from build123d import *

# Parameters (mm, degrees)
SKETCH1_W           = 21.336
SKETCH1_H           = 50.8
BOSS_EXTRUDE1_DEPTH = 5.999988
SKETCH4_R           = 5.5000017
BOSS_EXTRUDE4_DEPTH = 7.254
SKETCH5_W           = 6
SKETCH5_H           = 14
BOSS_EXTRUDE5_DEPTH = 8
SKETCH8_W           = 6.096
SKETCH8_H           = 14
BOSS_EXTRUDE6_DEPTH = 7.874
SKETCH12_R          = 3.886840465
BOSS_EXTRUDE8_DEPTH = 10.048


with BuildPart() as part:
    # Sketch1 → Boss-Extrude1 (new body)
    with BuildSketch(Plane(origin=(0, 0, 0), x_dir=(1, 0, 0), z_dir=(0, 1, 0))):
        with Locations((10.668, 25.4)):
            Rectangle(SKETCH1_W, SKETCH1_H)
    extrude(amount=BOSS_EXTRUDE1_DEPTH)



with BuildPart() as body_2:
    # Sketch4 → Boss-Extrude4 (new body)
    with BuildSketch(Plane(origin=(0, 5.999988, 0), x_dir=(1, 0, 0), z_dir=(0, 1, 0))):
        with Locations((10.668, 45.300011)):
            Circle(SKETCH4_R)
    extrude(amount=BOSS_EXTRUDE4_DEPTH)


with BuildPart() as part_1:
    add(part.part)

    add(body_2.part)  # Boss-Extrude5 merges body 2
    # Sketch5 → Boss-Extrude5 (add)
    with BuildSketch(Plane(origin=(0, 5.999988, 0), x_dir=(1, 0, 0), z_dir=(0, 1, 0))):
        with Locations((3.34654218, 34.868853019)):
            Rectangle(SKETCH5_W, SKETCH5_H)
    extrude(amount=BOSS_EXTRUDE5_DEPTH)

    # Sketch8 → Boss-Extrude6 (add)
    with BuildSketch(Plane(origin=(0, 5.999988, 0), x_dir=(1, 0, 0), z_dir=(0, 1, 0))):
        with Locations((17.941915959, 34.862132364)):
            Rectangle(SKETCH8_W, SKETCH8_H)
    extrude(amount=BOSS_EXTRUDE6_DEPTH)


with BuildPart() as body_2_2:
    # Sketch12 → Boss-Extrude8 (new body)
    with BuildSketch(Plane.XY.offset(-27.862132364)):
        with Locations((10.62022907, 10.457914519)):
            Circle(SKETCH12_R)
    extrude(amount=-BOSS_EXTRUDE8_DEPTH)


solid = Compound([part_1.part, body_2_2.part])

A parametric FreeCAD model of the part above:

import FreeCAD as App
import Part
import Sketcher
from FreeCAD import Vector
Q = App.Units.Quantity

doc = App.newDocument("Part")
params = doc.addObject("Spreadsheet::Sheet", "Params")
for row, (alias, value) in enumerate([
    ("sketch1_height", "2 in"),
    ("sketch1_width", "0.84 in"),
    ("pad1_length", "5.999988 mm"),
    ("pad2_length", "7.254 mm"),
    ("pad3_length", "8 mm"),
    ("sketch4_width", "0.24 in"),
    ("pad4_length", "0.31 in"),
    ("pad5_length", "10.048 mm"),
], start=1):
    params.set(f"A{row}", alias)
    params.set(f"B{row}", "=" + value)
    params.setAlias(f"B{row}", alias)

body = doc.addObject("PartDesign::Body", "Body")

# Sketch on XZ plane
sketch1 = doc.addObject("Sketcher::SketchObject", "Sketch")
body.addObject(sketch1)
sketch1.AttachmentSupport = (doc.XZ_Plane, [""])
sketch1.MapMode = "FlatFace"
sketch1.addGeometry([
    Part.LineSegment(Vector(0, -51, 0), Vector(0, 0, 0)),
    Part.LineSegment(Vector(0, 0, 0), Vector(21, 0, 0)),
    Part.LineSegment(Vector(21, 0, 0), Vector(21, -51, 0)),
    Part.LineSegment(Vector(21, -51, 0), Vector(0, -51, 0)),
], False)
sketch1.addConstraint([
    Sketcher.Constraint("Coincident", 0, 2, 1, 1),
    Sketcher.Constraint("Coincident", 1, 2, 2, 1),
    Sketcher.Constraint("Coincident", 2, 2, 3, 1),
    Sketcher.Constraint("Coincident", 3, 2, 0, 1),
    Sketcher.Constraint("Vertical", 0),
    Sketcher.Constraint("Horizontal", 1),
    Sketcher.Constraint("Vertical", 2),
    Sketcher.Constraint("Horizontal", 3),
    Sketcher.Constraint("Coincident", 0, 2, -1, 1),
    Sketcher.Constraint("DistanceY", 0, 1, 0, 2, Q("2 in")),
    Sketcher.Constraint("DistanceX", 1, 1, 1, 2, Q("0.84 in")),
])
sketch1.setExpression("Constraints[9]", "Params.sketch1_height")
sketch1.setExpression("Constraints[10]", "Params.sketch1_width")
pad1 = doc.addObject("PartDesign::Pad", "Pad")
body.addObject(pad1)
pad1.Profile = sketch1
pad1.setExpression("Length", "Params.pad1_length")
pad1.Reversed = True
body2 = doc.addObject("PartDesign::Body", "Body001")

# Sketch on XZ plane
sketch2 = doc.addObject("Sketcher::SketchObject", "Sketch001")
body2.addObject(sketch2)
sketch2.AttachmentSupport = (doc.getObject("XZ_Plane001"), [""])
sketch2.MapMode = "FlatFace"
sketch2.AttachmentOffset = App.Placement(Vector(0, 0, -5.999988), App.Rotation())
sketch2.addGeometry(Part.Circle(Vector(11, -45, 0), Vector(0, 0, 1), 6), False)
sketch2.addConstraint([
    Sketcher.Constraint("DistanceX", -1, 1, 0, 3, Q("0.42 in")),
    Sketcher.Constraint("Diameter", 0, 11.000003),
    Sketcher.Constraint("DistanceY", 0, 3, -1, 1, 45.300011),
])
pad2 = doc.addObject("PartDesign::Pad", "Pad001")
body2.addObject(pad2)
pad2.Profile = sketch2
pad2.setExpression("Length", "Params.pad2_length")
pad2.Reversed = True
doc.recompute()

boolean = doc.addObject("PartDesign::Boolean", "Boolean")
body.addObject(boolean)
boolean.Type = "Fuse"
boolean.addObjects([body2])

# Sketch on XZ plane
sketch3 = doc.addObject("Sketcher::SketchObject", "Sketch002")
body.addObject(sketch3)
sketch3.AttachmentSupport = (doc.XZ_Plane, [""])
sketch3.MapMode = "FlatFace"
sketch3.AttachmentOffset = App.Placement(Vector(0, 0, -5.999988), App.Rotation())
sketch3.addGeometry([
    Part.LineSegment(Vector(0, -42, 0), Vector(0, -28, 0)),
    Part.LineSegment(Vector(0, -28, 0), Vector(6, -28, 0)),
    Part.LineSegment(Vector(6, -28, 0), Vector(6, -42, 0)),
    Part.LineSegment(Vector(6, -42, 0), Vector(0, -42, 0)),
], False)
sketch3.addConstraint([
    Sketcher.Constraint("Coincident", 0, 2, 1, 1),
    Sketcher.Constraint("Coincident", 1, 2, 2, 1),
    Sketcher.Constraint("Coincident", 2, 2, 3, 1),
    Sketcher.Constraint("Coincident", 3, 2, 0, 1),
    Sketcher.Constraint("Vertical", 0),
    Sketcher.Constraint("Horizontal", 1),
    Sketcher.Constraint("Vertical", 2),
    Sketcher.Constraint("Horizontal", 3),
    Sketcher.Constraint("DistanceX", 1, 1, 1, 2, 6.0),
    Sketcher.Constraint("DistanceY", 0, 1, 0, 2, 14.0),
    Sketcher.Constraint("DistanceX", -1, 1, 0, 2, 0.346542),
    Sketcher.Constraint("DistanceY", 0, 2, -1, 1, 27.868853),
])
pad3 = doc.addObject("PartDesign::Pad", "Pad002")
body.addObject(pad3)
pad3.Profile = sketch3
pad3.setExpression("Length", "Params.pad3_length")
pad3.Reversed = True

# Sketch on XZ plane
sketch4 = doc.addObject("Sketcher::SketchObject", "Sketch003")
body.addObject(sketch4)
sketch4.AttachmentSupport = (doc.XZ_Plane, [""])
sketch4.MapMode = "FlatFace"
sketch4.AttachmentOffset = App.Placement(Vector(0, 0, -5.999988), App.Rotation())
sketch4.addGeometry([
    Part.LineSegment(Vector(15, -42, 0), Vector(15, -28, 0)),
    Part.LineSegment(Vector(15, -28, 0), Vector(21, -28, 0)),
    Part.LineSegment(Vector(21, -28, 0), Vector(21, -42, 0)),
    Part.LineSegment(Vector(21, -42, 0), Vector(15, -42, 0)),
], False)
sketch4.addConstraint([
    Sketcher.Constraint("Coincident", 0, 2, 1, 1),
    Sketcher.Constraint("Coincident", 1, 2, 2, 1),
    Sketcher.Constraint("Coincident", 2, 2, 3, 1),
    Sketcher.Constraint("Coincident", 3, 2, 0, 1),
    Sketcher.Constraint("Vertical", 0),
    Sketcher.Constraint("Horizontal", 1),
    Sketcher.Constraint("Vertical", 2),
    Sketcher.Constraint("Horizontal", 3),
    Sketcher.Constraint("DistanceX", 1, 1, 1, 2, Q("0.24 in")),
    Sketcher.Constraint("DistanceY", 0, 1, 0, 2, 14.0),
    Sketcher.Constraint("DistanceX", -1, 1, 0, 2, 14.893916),
    Sketcher.Constraint("DistanceY", 0, 2, -1, 1, 27.862132),
])
sketch4.setExpression("Constraints[8]", "Params.sketch4_width")
pad4 = doc.addObject("PartDesign::Pad", "Pad003")
body.addObject(pad4)
pad4.Profile = sketch4
pad4.setExpression("Length", "Params.pad4_length")
pad4.Reversed = True
body3 = doc.addObject("PartDesign::Body", "Body002")

# Sketch on XY plane
sketch5 = doc.addObject("Sketcher::SketchObject", "Sketch004")
body3.addObject(sketch5)
sketch5.AttachmentSupport = (doc.getObject("XY_Plane002"), [""])
sketch5.MapMode = "FlatFace"
sketch5.AttachmentOffset = App.Placement(Vector(0, 0, -27.862132), App.Rotation())
sketch5.addGeometry(Part.Circle(Vector(10.6, 10.5, 0), Vector(0, 0, 1), 3.9), False)
sketch5.addConstraint([
    Sketcher.Constraint("Diameter", 0, 7.773681),
    Sketcher.Constraint("DistanceX", -1, 1, 0, 3, 10.620229),
    Sketcher.Constraint("DistanceY", -1, 1, 0, 3, 10.457915),
])
pad5 = doc.addObject("PartDesign::Pad", "Pad004")
body3.addObject(pad5)
pad5.Profile = sketch5
pad5.setExpression("Length", "Params.pad5_length")
pad5.Reversed = True

doc.recompute()
